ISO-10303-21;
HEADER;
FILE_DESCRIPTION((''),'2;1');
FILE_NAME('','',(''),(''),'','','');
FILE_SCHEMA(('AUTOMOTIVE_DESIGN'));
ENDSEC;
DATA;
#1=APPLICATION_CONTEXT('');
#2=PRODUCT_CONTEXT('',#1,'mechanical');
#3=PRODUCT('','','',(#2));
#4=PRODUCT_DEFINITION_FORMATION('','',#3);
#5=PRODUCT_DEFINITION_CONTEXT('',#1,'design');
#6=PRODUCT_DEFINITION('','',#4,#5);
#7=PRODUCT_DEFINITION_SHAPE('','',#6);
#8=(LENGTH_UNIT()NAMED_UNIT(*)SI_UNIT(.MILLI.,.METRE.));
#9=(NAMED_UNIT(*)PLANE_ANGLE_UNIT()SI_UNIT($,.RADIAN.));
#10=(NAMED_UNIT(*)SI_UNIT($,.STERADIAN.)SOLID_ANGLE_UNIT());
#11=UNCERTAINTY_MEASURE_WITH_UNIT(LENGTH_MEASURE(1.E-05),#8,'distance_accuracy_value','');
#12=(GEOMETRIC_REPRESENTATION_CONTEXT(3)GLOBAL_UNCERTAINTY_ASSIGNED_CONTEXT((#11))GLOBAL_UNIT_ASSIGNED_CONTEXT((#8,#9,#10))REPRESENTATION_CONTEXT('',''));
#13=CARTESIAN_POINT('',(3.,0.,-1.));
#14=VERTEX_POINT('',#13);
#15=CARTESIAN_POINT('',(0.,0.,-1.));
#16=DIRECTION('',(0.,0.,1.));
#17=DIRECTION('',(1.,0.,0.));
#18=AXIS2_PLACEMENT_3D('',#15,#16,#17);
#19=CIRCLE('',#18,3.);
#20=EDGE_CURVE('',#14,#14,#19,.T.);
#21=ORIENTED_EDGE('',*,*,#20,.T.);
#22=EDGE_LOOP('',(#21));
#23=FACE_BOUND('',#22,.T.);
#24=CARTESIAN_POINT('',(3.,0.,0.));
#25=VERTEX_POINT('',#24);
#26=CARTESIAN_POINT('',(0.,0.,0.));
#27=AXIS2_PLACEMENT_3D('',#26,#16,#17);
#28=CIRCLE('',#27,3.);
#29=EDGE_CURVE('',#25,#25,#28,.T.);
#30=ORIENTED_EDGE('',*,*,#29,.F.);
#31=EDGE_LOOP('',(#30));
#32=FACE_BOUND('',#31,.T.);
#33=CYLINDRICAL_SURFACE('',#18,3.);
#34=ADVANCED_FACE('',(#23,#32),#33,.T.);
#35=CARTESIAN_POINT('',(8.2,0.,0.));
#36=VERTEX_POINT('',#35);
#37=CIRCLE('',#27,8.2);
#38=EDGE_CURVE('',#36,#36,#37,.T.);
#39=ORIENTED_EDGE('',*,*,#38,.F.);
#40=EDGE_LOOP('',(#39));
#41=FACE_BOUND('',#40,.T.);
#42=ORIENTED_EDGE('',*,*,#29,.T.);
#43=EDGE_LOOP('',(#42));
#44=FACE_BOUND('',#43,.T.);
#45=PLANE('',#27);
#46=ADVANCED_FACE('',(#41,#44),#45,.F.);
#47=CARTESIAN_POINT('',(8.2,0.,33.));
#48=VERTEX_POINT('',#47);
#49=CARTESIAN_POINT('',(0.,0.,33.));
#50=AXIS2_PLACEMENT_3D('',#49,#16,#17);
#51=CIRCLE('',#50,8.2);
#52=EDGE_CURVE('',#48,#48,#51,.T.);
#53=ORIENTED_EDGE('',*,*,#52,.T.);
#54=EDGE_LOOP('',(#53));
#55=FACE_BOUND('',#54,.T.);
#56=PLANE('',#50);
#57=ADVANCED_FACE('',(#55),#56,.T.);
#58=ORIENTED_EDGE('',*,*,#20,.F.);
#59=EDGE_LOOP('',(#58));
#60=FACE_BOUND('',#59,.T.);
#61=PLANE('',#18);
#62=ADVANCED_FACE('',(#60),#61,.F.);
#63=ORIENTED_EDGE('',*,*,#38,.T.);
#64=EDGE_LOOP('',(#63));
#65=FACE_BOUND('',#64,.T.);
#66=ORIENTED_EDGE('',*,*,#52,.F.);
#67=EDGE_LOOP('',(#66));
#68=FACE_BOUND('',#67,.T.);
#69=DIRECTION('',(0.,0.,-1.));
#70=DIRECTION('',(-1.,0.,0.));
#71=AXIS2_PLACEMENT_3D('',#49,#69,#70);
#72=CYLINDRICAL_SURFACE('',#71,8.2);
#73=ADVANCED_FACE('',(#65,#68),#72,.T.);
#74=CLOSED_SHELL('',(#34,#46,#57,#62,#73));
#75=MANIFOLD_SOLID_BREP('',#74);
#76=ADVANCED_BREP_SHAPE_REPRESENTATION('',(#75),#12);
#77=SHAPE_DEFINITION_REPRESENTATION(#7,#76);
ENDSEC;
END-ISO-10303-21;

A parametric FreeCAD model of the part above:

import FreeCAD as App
import Part
import Sketcher
from FreeCAD import Vector
Q = App.Units.Quantity

doc = App.newDocument("Part")
body = doc.addObject("PartDesign::Body", "Body")

# Sketch on XY plane
sketch1 = body.newObject("Sketcher::SketchObject", "Sketch")
sketch1.AttachmentSupport = (doc.getObject("XY_Plane"), [""])
sketch1.MapMode = "FlatFace"
sketch1.addGeometry(Part.Circle(Vector(0, 0, 0), Vector(0, 0, 1), 8.2), False)
sketch1.addConstraint(Sketcher.Constraint("Coincident", 0, 3, -1, 1))
sketch1.addConstraint(Sketcher.Constraint("Diameter", 0, Q("16.4 mm")))
pad1 = body.newObject("PartDesign::Pad", "Pad")
pad1.Profile = sketch1
pad1.Length = 33

# Sketch on XY plane
sketch2 = body.newObject("Sketcher::SketchObject", "Sketch001")
sketch2.AttachmentSupport = (doc.getObject("XY_Plane"), [""])
sketch2.MapMode = "FlatFace"
sketch2.AttachmentOffset = App.Placement(Vector(0, 0, 33), App.Rotation())
sketch2.addGeometry(Part.Circle(Vector(0, 0, 0), Vector(0, 0, 1), 3), False)
sketch2.addConstraint(Sketcher.Constraint("Coincident", 0, 3, -1, 1))
sketch2.addConstraint(Sketcher.Constraint("Diameter", 0, Q("6 mm")))
pad2 = body.newObject("PartDesign::Pad", "Pad001")
pad2.Profile = sketch2
pad2.Length = 34
pad2.Reversed = True

doc.recompute()
